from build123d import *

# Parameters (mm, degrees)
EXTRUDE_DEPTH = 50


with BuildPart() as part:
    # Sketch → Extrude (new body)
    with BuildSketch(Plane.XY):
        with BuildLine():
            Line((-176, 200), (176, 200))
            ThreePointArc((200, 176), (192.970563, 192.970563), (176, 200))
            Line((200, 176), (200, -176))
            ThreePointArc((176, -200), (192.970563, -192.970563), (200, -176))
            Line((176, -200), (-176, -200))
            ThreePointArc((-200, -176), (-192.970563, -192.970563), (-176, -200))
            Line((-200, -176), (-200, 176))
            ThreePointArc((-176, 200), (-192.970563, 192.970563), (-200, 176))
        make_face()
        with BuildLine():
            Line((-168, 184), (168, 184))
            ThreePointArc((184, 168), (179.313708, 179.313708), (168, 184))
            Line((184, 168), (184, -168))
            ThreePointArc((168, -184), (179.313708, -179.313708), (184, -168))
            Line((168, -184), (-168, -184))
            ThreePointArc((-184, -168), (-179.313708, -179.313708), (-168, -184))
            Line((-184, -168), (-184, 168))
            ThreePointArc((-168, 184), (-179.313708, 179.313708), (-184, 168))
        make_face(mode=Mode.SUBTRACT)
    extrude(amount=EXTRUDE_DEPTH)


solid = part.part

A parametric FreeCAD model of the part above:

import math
import FreeCAD as App
import Part
import Sketcher
from FreeCAD import Vector

doc = App.newDocument("Part")
params = doc.addObject("Spreadsheet::Sheet", "Params")
for row, (alias, value) in enumerate([
    ("sketch1_radius", "23.999999 mm"),
    ("sketch1_radius2", "16.000002 mm"),
    ("sketch1_width", "352 mm"),
    ("sketch1_width2", "336 mm"),
    ("pad1_length", "50 mm"),
], start=1):
    params.set(f"A{row}", alias)
    params.set(f"B{row}", "=" + value)
    params.setAlias(f"B{row}", alias)

body = doc.addObject("PartDesign::Body", "Body")

sketch1 = doc.addObject("Sketcher::SketchObject", "Sketch")
body.addObject(sketch1)
sketch1.AttachmentSupport = (doc.XY_Plane, [""])
sketch1.MapMode = "FlatFace"
sketch1.addGeometry([
    Part.LineSegment(Vector(176, 200, 0), Vector(-176, 200, 0)),
    Part.ArcOfCircle(Part.Circle(Vector(-176.000001, 176.000001, 0), Vector(0, 0, 1), 23.999999), math.radians(89.999998), math.radians(180.000002)),
    Part.LineSegment(Vector(-200, 176, 0), Vector(-200, -176, 0)),
    Part.ArcOfCircle(Part.Circle(Vector(-176.000001, -176.000001, 0), Vector(0, 0, 1), 23.999999), math.radians(179.999998), math.radians(270.000002)),
    Part.LineSegment(Vector(-176, -200, 0), Vector(176, -200, 0)),
    Part.ArcOfCircle(Part.Circle(Vector(176.000001, -176.000001, 0), Vector(0, 0, 1), 23.999999), math.radians(-90.000002), math.radians(0.000002)),
    Part.LineSegment(Vector(200, -176, 0), Vector(200, 176, 0)),
    Part.ArcOfCircle(Part.Circle(Vector(176.000001, 176.000001, 0), Vector(0, 0, 1), 23.999999), math.radians(-0.000002), math.radians(90.000002)),
    Part.LineSegment(Vector(-168, 184, 0), Vector(168, 184, 0)),
    Part.ArcOfCircle(Part.Circle(Vector(167.999998, 167.999998, 0), Vector(0, 0, 1), 16.000002), math.radians(0.000006), math.radians(89.999994)),
    Part.LineSegment(Vector(184, 168, 0), Vector(184, -168, 0)),
    Part.ArcOfCircle(Part.Circle(Vector(167.999998, -167.999998, 0), Vector(0, 0, 1), 16.000002), math.radians(-89.999994), math.radians(-0.000006)),
    Part.LineSegment(Vector(168, -184, 0), Vector(-168, -184, 0)),
    Part.ArcOfCircle(Part.Circle(Vector(-167.999998, -167.999998, 0), Vector(0, 0, 1), 16.000002), math.radians(-179.999994), math.radians(-90.000006)),
    Part.LineSegment(Vector(-184, -168, 0), Vector(-184, 168, 0)),
    Part.ArcOfCircle(Part.Circle(Vector(-167.999998, 167.999998, 0), Vector(0, 0, 1), 16.000002), math.radians(90.000006), math.radians(179.999994)),
], False)
sketch1.addConstraint([
    Sketcher.Constraint("Tangent", 0, 2, 1, 1),
    Sketcher.Constraint("Tangent", 1, 2, 2, 1),
    Sketcher.Constraint("Tangent", 2, 2, 3, 1),
    Sketcher.Constraint("Tangent", 3, 2, 4, 1),
    Sketcher.Constraint("Tangent", 4, 2, 5, 1),
    Sketcher.Constraint("Tangent", 5, 2, 6, 1),
    Sketcher.Constraint("Tangent", 6, 2, 7, 1),
    Sketcher.Constraint("Tangent", 7, 2, 0, 1),
    Sketcher.Constraint("Tangent", 8, 2, 9, 2),
    Sketcher.Constraint("Tangent", 9, 1, 10, 1),
    Sketcher.Constraint("Tangent", 10, 2, 11, 2),
    Sketcher.Constraint("Tangent", 11, 1, 12, 1),
    Sketcher.Constraint("Tangent", 12, 2, 13, 2),
    Sketcher.Constraint("Tangent", 13, 1, 14, 1),
    Sketcher.Constraint("Tangent", 14, 2, 15, 2),
    Sketcher.Constraint("Tangent", 15, 1, 8, 1),
    Sketcher.Constraint("Horizontal", 0),
    Sketcher.Constraint("Vertical", 2),
    Sketcher.Constraint("Horizontal", 4),
    Sketcher.Constraint("Vertical", 6),
    Sketcher.Constraint("Horizontal", 8),
    Sketcher.Constraint("Vertical", 10),
    Sketcher.Constraint("Horizontal", 12),
    Sketcher.Constraint("Vertical", 14),
    Sketcher.Constraint("Equal", 1, 3),
    Sketcher.Constraint("Equal", 3, 5),
    Sketcher.Constraint("Equal", 5, 7),
    Sketcher.Constraint("Equal", 9, 11),
    Sketcher.Constraint("Equal", 11, 13),
    Sketcher.Constraint("Equal", 13, 15),
    Sketcher.Constraint("Symmetric", 1, 3, 5, 3, -1, 1),
    Sketcher.Constraint("Symmetric", 9, 3, 13, 3, -1, 1),
    Sketcher.Constraint("Equal", 4, 2),
    Sketcher.Constraint("Equal", 12, 10),
    Sketcher.Constraint("Radius", 1, 23.999999),
    Sketcher.Constraint("Radius", 9, 16.000002),
    Sketcher.Constraint("DistanceX", 0, 2, 0, 1, 352.0),
    Sketcher.Constraint("DistanceX", 8, 1, 8, 2, 336.0),
])
sketch1.setExpression("Constraints[34]", "Params.sketch1_radius")
sketch1.setExpression("Constraints[35]", "Params.sketch1_radius2")
sketch1.setExpression("Constraints[36]", "Params.sketch1_width")
sketch1.setExpression("Constraints[37]", "Params.sketch1_width2")
pad1 = doc.addObject("PartDesign::Pad", "Pad")
body.addObject(pad1)
pad1.Profile = sketch1
pad1.setExpression("Length", "Params.pad1_length")

doc.recompute()
